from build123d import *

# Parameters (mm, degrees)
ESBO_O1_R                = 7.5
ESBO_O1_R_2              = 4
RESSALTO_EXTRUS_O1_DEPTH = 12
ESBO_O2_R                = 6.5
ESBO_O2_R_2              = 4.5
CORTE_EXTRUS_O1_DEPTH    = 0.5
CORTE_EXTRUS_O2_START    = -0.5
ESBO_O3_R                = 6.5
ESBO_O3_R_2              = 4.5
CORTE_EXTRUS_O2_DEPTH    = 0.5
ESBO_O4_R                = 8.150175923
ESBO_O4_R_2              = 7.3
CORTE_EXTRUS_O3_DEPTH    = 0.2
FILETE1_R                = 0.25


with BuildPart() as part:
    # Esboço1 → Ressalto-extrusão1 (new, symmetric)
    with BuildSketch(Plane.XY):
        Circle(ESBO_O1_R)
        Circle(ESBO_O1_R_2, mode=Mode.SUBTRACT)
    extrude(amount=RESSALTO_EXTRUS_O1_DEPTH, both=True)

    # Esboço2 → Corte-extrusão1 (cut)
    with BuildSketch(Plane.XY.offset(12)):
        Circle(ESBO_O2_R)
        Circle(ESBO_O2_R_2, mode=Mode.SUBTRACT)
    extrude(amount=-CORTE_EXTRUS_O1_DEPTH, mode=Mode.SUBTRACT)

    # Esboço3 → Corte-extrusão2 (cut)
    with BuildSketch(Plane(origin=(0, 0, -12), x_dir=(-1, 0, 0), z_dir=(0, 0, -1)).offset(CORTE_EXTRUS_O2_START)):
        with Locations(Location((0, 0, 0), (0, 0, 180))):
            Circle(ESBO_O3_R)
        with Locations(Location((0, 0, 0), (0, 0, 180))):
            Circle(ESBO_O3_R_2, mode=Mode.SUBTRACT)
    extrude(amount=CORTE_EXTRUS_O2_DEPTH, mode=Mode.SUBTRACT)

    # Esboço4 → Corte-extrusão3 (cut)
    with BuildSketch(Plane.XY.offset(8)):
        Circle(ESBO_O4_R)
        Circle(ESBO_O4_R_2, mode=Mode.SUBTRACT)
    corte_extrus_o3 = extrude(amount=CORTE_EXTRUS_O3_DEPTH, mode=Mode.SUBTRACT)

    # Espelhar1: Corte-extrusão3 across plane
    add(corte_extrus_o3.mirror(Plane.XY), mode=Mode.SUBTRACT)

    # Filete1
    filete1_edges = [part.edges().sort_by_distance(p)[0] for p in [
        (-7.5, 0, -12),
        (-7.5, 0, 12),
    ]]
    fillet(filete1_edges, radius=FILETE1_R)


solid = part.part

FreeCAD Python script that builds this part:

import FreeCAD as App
import Part
import Sketcher

V = App.Vector
Q = App.Units.Quantity


def edges_at(feature, points):
    """Names of the edges that pass closest to the given points."""
    edges = feature.Shape.Edges
    near = lambda p: min(range(len(edges)), key=lambda i: edges[i].distToShape(Part.Vertex(*p))[0])
    return sorted({f"Edge{near(p) + 1}" for p in points})

doc = App.newDocument("Part")
body = doc.addObject("PartDesign::Body", "Body")

# Sketch on XY plane
sketch1 = body.newObject("Sketcher::SketchObject", "Sketch")
sketch1.AttachmentSupport = (doc.getObject("XY_Plane"), [""])
sketch1.MapMode = "FlatFace"
sketch1.addGeometry([
    Part.Circle(V(0, 0, 0), V(0, 0, 1), 7.5),
    Part.Circle(V(0, 0, 0), V(0, 0, 1), 4),
], False)
sketch1.addConstraint([
    Sketcher.Constraint("Coincident", 0, 3, -1, 1),
    Sketcher.Constraint("Coincident", 1, 3, -1, 1),
    Sketcher.Constraint("Diameter", 0, Q("15 mm")),
    Sketcher.Constraint("Diameter", 1, Q("8 mm")),
])
pad1 = body.newObject("PartDesign::Pad", "Pad")
pad1.Profile = sketch1
pad1.Length = 24
pad1.Midplane = True

# Sketch on XY plane
sketch2 = body.newObject("Sketcher::SketchObject", "Sketch001")
sketch2.AttachmentSupport = (doc.getObject("XY_Plane"), [""])
sketch2.MapMode = "FlatFace"
sketch2.AttachmentOffset = App.Placement(V(0, 0, 12), App.Rotation())
sketch2.addGeometry([
    Part.Circle(V(0, 0, 0), V(0, 0, 1), 6.5),
    Part.Circle(V(0, 0, 0), V(0, 0, 1), 4.5),
], False)
sketch2.addConstraint([
    Sketcher.Constraint("Coincident", 0, 3, -1, 1),
    Sketcher.Constraint("Coincident", 1, 3, -1, 1),
    Sketcher.Constraint("Diameter", 0, Q("13 mm")),
    Sketcher.Constraint("Diameter", 1, Q("9 mm")),
])
pocket1 = body.newObject("PartDesign::Pocket", "Pocket")
pocket1.Profile = sketch2
pocket1.Length = 0.5

# Sketch on XY plane
sketch3 = body.newObject("Sketcher::SketchObject", "Sketch002")
sketch3.AttachmentSupport = (doc.getObject("XY_Plane"), [""])
sketch3.MapMode = "FlatFace"
sketch3.AttachmentOffset = App.Placement(V(0, 0, -11.5), App.Rotation())
sketch3.addGeometry([
    Part.Circle(V(0, 0, 0), V(0, 0, 1), 6.5),
    Part.Circle(V(0, 0, 0), V(0, 0, 1), 4.5),
], False)
sketch3.addConstraint([
    Sketcher.Constraint("Coincident", 0, 3, -1, 1),
    Sketcher.Constraint("Coincident", 1, 3, -1, 1),
    Sketcher.Constraint("Diameter", 0, Q("13 mm")),
    Sketcher.Constraint("Diameter", 1, Q("9 mm")),
])
pocket2 = body.newObject("PartDesign::Pocket", "Pocket001")
pocket2.Profile = sketch3
pocket2.Length = 0.5

# Sketch on XY plane
sketch4 = body.newObject("Sketcher::SketchObject", "Sketch003")
sketch4.AttachmentSupport = (doc.getObject("XY_Plane"), [""])
sketch4.MapMode = "FlatFace"
sketch4.AttachmentOffset = App.Placement(V(0, 0, 8), App.Rotation())
sketch4.addGeometry([
    Part.Circle(V(0, 0, 0), V(0, 0, 1), 8),
    Part.Circle(V(0, 0, 0), V(0, 0, 1), 7),
], False)
sketch4.addConstraint([
    Sketcher.Constraint("Coincident", 0, 3, -1, 1),
    Sketcher.Constraint("Coincident", 1, 3, -1, 1),
    Sketcher.Constraint("Diameter", 1, Q("14.6 mm")),
    Sketcher.Constraint("Diameter", 0, Q("16.300352 mm")),
])
pocket3 = body.newObject("PartDesign::Pocket", "Pocket002")
pocket3.Profile = sketch4
pocket3.Length = 0.2
pocket3.Reversed = True
doc.recompute()

mirrored = body.newObject("PartDesign::Mirrored", "Mirrored")
mirrored.Originals = [pocket3]
mirrored.MirrorPlane = (doc.getObject("XY_Plane"), [""])
body.Tip = mirrored
doc.recompute()

fillet = body.newObject("PartDesign::Fillet", "Fillet")
fillet.Base = (mirrored, edges_at(mirrored, [(-7.5, 0, -12), (-7.5, 0, 12)]))
fillet.Radius = 0.25

doc.recompute()
